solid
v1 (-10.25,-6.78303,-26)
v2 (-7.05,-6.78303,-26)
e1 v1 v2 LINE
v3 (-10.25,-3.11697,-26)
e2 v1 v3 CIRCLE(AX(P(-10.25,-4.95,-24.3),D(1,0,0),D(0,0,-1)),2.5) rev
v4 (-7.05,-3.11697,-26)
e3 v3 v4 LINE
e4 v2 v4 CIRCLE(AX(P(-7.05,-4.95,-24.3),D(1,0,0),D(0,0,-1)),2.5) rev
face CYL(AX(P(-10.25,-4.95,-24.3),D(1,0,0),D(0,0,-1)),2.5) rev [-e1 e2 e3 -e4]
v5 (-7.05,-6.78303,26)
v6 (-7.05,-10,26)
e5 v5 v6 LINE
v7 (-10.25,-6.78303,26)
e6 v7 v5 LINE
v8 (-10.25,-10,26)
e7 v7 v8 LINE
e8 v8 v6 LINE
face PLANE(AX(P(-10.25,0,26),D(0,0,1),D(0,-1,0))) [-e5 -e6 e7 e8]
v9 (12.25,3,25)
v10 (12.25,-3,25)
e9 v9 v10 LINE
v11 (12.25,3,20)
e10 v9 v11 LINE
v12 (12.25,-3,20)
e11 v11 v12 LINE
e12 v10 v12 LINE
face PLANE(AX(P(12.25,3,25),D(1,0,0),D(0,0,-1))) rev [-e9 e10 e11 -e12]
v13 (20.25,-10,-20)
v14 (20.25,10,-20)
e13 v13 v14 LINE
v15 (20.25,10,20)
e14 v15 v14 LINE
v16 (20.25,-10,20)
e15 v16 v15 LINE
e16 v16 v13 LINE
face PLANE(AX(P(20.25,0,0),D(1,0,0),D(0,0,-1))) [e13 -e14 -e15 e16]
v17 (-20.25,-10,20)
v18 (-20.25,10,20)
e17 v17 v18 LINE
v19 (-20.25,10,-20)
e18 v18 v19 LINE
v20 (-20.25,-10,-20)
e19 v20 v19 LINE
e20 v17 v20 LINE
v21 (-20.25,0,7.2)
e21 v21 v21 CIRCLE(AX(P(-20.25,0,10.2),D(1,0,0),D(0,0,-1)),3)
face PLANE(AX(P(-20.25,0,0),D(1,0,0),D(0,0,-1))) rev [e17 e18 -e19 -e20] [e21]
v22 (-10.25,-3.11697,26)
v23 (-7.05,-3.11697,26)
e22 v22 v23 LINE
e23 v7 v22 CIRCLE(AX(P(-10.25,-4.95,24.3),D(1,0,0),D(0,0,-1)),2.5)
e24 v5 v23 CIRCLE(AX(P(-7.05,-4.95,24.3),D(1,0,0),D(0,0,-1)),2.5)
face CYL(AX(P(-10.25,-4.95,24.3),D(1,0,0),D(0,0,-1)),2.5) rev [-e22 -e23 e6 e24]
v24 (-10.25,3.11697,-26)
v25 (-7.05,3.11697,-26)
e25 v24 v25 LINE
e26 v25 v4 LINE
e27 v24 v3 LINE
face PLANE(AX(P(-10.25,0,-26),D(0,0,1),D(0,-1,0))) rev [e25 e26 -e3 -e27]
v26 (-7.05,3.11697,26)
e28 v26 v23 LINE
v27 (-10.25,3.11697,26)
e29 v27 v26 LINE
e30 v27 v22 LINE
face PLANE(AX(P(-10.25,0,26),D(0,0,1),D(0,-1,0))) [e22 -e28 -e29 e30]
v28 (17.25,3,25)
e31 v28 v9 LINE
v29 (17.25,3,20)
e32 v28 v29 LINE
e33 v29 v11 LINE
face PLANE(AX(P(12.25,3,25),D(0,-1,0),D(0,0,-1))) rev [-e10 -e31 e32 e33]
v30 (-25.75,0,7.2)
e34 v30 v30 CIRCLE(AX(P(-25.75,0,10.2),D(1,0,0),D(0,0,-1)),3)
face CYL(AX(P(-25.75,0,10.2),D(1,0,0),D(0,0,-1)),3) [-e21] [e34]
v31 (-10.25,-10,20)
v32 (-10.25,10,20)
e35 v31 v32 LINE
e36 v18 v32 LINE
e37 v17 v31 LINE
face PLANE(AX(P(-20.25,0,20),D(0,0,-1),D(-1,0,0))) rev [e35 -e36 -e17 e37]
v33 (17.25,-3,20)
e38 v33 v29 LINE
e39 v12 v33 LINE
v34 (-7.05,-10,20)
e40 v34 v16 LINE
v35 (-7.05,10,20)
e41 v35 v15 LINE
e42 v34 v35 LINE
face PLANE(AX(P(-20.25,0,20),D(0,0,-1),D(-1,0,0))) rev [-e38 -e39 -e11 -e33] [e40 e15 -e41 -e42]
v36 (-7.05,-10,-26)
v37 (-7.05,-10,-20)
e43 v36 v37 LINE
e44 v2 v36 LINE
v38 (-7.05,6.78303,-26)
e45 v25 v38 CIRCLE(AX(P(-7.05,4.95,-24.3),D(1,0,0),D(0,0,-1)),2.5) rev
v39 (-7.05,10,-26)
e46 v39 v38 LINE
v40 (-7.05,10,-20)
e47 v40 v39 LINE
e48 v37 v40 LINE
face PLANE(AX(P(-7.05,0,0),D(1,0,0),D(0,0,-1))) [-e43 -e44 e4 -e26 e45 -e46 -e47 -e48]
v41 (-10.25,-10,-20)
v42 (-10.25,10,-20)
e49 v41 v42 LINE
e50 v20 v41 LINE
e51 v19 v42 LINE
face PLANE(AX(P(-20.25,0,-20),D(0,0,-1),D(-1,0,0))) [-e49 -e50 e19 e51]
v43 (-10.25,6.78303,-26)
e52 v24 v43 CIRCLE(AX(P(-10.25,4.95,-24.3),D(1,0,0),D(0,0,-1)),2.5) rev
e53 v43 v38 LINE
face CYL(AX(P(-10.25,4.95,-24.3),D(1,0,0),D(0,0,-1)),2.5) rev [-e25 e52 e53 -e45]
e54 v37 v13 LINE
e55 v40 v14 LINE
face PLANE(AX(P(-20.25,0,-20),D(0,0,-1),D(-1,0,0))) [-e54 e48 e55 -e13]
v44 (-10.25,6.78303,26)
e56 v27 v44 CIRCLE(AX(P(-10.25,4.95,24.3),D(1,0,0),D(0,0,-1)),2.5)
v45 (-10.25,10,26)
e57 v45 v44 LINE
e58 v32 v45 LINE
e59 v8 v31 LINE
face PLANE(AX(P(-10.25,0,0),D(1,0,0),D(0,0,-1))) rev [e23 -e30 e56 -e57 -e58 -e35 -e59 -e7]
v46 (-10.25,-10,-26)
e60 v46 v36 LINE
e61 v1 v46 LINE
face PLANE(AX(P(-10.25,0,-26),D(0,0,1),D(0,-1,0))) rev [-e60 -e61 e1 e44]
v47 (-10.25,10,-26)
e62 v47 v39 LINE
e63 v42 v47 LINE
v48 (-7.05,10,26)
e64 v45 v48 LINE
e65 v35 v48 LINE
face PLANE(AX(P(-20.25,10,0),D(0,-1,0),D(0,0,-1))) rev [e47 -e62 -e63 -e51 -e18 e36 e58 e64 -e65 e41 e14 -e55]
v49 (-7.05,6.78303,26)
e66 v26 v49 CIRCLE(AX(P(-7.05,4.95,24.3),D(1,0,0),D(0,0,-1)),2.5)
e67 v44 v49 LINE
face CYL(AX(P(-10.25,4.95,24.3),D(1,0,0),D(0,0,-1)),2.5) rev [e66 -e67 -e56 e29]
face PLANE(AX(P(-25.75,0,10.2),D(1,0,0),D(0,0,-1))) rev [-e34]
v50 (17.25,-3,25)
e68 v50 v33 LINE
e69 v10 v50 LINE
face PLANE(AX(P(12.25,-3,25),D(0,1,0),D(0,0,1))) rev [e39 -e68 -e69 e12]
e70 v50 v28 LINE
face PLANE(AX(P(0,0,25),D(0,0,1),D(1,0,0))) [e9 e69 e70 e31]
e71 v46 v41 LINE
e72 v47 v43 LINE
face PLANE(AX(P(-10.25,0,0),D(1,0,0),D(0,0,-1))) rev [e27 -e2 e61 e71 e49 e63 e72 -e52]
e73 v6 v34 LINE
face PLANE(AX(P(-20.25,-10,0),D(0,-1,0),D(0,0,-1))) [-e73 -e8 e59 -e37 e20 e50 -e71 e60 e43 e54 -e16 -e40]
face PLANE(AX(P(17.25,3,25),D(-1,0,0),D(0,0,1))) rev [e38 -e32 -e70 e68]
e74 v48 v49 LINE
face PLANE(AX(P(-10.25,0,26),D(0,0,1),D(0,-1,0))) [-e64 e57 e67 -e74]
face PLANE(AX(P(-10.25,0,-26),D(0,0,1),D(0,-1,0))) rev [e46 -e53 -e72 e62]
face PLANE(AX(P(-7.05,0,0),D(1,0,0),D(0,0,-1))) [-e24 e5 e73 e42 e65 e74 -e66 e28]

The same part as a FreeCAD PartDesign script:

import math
import FreeCAD as App
import Part
import Sketcher
Q = App.Units.Quantity

doc = App.newDocument("Part")
body = doc.addObject("PartDesign::Body", "Body")

sketch1 = doc.addObject("Sketcher::SketchObject", "Sketch")
body.addObject(sketch1)
sketch1.AttachmentSupport = (doc.YZ_Plane, [""])
sketch1.MapMode = "FlatFace"
sketch1.AttachmentOffset = App.Placement(App.Vector(0, 0, 20.25), App.Rotation())
sketch1.addGeometry([
    Part.LineSegment(App.Vector(10, 20, 0), App.Vector(-10, 20, 0)),
    Part.LineSegment(App.Vector(-10, 20, 0), App.Vector(-10, -20, 0)),
    Part.LineSegment(App.Vector(-10, -20, 0), App.Vector(10, -20, 0)),
    Part.LineSegment(App.Vector(10, -20, 0), App.Vector(10, 20, 0)),
], False)
sketch1.addConstraint([
    Sketcher.Constraint("Coincident", 0, 2, 1, 1),
    Sketcher.Constraint("Coincident", 1, 2, 2, 1),
    Sketcher.Constraint("Coincident", 2, 2, 3, 1),
    Sketcher.Constraint("Coincident", 3, 2, 0, 1),
    Sketcher.Constraint("Horizontal", 0),
    Sketcher.Constraint("Vertical", 1),
    Sketcher.Constraint("Horizontal", 2),
    Sketcher.Constraint("Vertical", 3),
    Sketcher.Constraint("Symmetric", 0, 2, 2, 2, -1, 1),
    Sketcher.Constraint("DistanceX", 0, 2, 0, 1, Q("20 mm")),
    Sketcher.Constraint("DistanceY", 1, 2, 1, 1, Q("40 mm")),
])
pad1 = doc.addObject("PartDesign::Pad", "Pad")
body.addObject(pad1)
pad1.Profile = sketch1
pad1.Length = 40.5
pad1.Reversed = True

sketch2 = doc.addObject("Sketcher::SketchObject", "Sketch001")
body.addObject(sketch2)
sketch2.AttachmentSupport = (doc.YZ_Plane, [""])
sketch2.MapMode = "FlatFace"
sketch2.AttachmentOffset = App.Placement(App.Vector(0, 0, -7.05), App.Rotation())
sketch2.addGeometry([
    Part.LineSegment(App.Vector(-10, 26, 0), App.Vector(-10, 20, 0)),
    Part.LineSegment(App.Vector(-10, 20, 0), App.Vector(10, 20, 0)),
    Part.LineSegment(App.Vector(10, 20, 0), App.Vector(10, 26, 0)),
    Part.LineSegment(App.Vector(10, 26, 0), App.Vector(6.8, 26, 0)),
    Part.ArcOfCircle(Part.Circle(App.Vector(5, 24.3, 0), App.Vector(0, 0, 1), 2.5), math.radians(137), math.radians(403)),
    Part.LineSegment(App.Vector(3.1, 26, 0), App.Vector(-3.1, 26, 0)),
    Part.ArcOfCircle(Part.Circle(App.Vector(-5, 24.3, 0), App.Vector(0, 0, 1), 2.5), math.radians(137), math.radians(403)),
    Part.LineSegment(App.Vector(-6.8, 26, 0), App.Vector(-10, 26, 0)),
    Part.LineSegment(App.Vector(10, -20, 0), App.Vector(-10, -20, 0)),
    Part.LineSegment(App.Vector(-10, -20, 0), App.Vector(-10, -26, 0)),
    Part.LineSegment(App.Vector(-10, -26, 0), App.Vector(-6.8, -26, 0)),
    Part.ArcOfCircle(Part.Circle(App.Vector(-5, -24.3, 0), App.Vector(0, 0, 1), 2.5), math.radians(-43), math.radians(223)),
    Part.LineSegment(App.Vector(-3.1, -26, 0), App.Vector(3.1, -26, 0)),
    Part.ArcOfCircle(Part.Circle(App.Vector(5, -24.3, 0), App.Vector(0, 0, 1), 2.5), math.radians(-43), math.radians(223)),
    Part.LineSegment(App.Vector(6.8, -26, 0), App.Vector(10, -26, 0)),
    Part.LineSegment(App.Vector(10, -26, 0), App.Vector(10, -20, 0)),
], False)
sketch2.addConstraint([
    Sketcher.Constraint("Coincident", 0, 2, 1, 1),
    Sketcher.Constraint("Coincident", 1, 2, 2, 1),
    Sketcher.Constraint("Coincident", 2, 2, 3, 1),
    Sketcher.Constraint("Coincident", 3, 2, 4, 2),
    Sketcher.Constraint("Coincident", 4, 1, 5, 1),
    Sketcher.Constraint("Coincident", 5, 2, 6, 2),
    Sketcher.Constraint("Coincident", 6, 1, 7, 1),
    Sketcher.Constraint("Coincident", 7, 2, 0, 1),
    Sketcher.Constraint("Coincident", 8, 2, 9, 1),
    Sketcher.Constraint("Coincident", 9, 2, 10, 1),
    Sketcher.Constraint("Coincident", 10, 2, 11, 2),
    Sketcher.Constraint("Coincident", 11, 1, 12, 1),
    Sketcher.Constraint("Coincident", 12, 2, 13, 2),
    Sketcher.Constraint("Coincident", 13, 1, 14, 1),
    Sketcher.Constraint("Coincident", 14, 2, 15, 1),
    Sketcher.Constraint("Coincident", 15, 2, 8, 1),
    Sketcher.Constraint("Vertical", 0),
    Sketcher.Constraint("Horizontal", 1),
    Sketcher.Constraint("Vertical", 2),
    Sketcher.Constraint("Horizontal", 3),
    Sketcher.Constraint("Horizontal", 5),
    Sketcher.Constraint("Horizontal", 7),
    Sketcher.Constraint("Horizontal", 8),
    Sketcher.Constraint("Vertical", 9),
    Sketcher.Constraint("Horizontal", 10),
    Sketcher.Constraint("Horizontal", 12),
    Sketcher.Constraint("Horizontal", 14),
    Sketcher.Constraint("Vertical", 15),
    Sketcher.Constraint("Equal", 4, 6),
    Sketcher.Constraint("Equal", 6, 11),
    Sketcher.Constraint("Equal", 11, 13),
    Sketcher.Constraint("Symmetric", 4, 3, 11, 3, -1, 1),
    Sketcher.Constraint("Symmetric", 6, 3, 13, 3, -1, 1),
    Sketcher.Constraint("Symmetric", 1, 2, 8, 2, -1, 1),
    Sketcher.Constraint("Symmetric", 7, 2, 14, 2, -1, 1),
    Sketcher.Constraint("Symmetric", 4, 3, 6, 3, -2),
    Sketcher.Constraint("Symmetric", 2, 2, 7, 2, -2),
    Sketcher.Constraint("Horizontal", 3, 2, 4, 1),
    Sketcher.Constraint("Horizontal", 10, 2, 11, 1),
    Sketcher.Constraint("Horizontal", 12, 2, 13, 1),
    Sketcher.Constraint("Radius", 4, Q("2.5 mm")),
    Sketcher.Constraint("DistanceX", 1, 1, 1, 2, Q("20 mm")),
    Sketcher.Constraint("DistanceY", 0, 2, 0, 1, Q("6 mm")),
    Sketcher.Constraint("DistanceY", -1, 1, 0, 2, Q("20 mm")),
    Sketcher.Constraint("DistanceY", -1, 1, 4, 3, Q("24.3 mm")),
    Sketcher.Constraint("DistanceX", 6, 3, 4, 3, Q("9.9 mm")),
])
pad2 = doc.addObject("PartDesign::Pad", "Pad001")
body.addObject(pad2)
pad2.Profile = sketch2
pad2.Length = 3.2
pad2.Reversed = True

sketch3 = doc.addObject("Sketcher::SketchObject", "Sketch002")
body.addObject(sketch3)
sketch3.AttachmentSupport = (doc.YZ_Plane, [""])
sketch3.MapMode = "FlatFace"
sketch3.AttachmentOffset = App.Placement(App.Vector(0, 0, -20.25), App.Rotation())
sketch3.addGeometry(Part.Circle(App.Vector(0, 10.2, 0), App.Vector(0, 0, 1), 3), False)
sketch3.addConstraint([
    Sketcher.Constraint("PointOnObject", 0, 3, -2),
    Sketcher.Constraint("Diameter", 0, Q("6 mm")),
    Sketcher.Constraint("DistanceY", -1, 1, 0, 3, Q("10.2 mm")),
])
pad3 = doc.addObject("PartDesign::Pad", "Pad002")
body.addObject(pad3)
pad3.Profile = sketch3
pad3.Length = 5.5
pad3.Reversed = True

sketch4 = doc.addObject("Sketcher::SketchObject", "Sketch003")
body.addObject(sketch4)
sketch4.AttachmentSupport = (doc.XY_Plane, [""])
sketch4.MapMode = "FlatFace"
sketch4.AttachmentOffset = App.Placement(App.Vector(0, 0, 20), App.Rotation())
sketch4.addGeometry([
    Part.LineSegment(App.Vector(12, 3, 0), App.Vector(12, -3, 0)),
    Part.LineSegment(App.Vector(12, -3, 0), App.Vector(17, -3, 0)),
    Part.LineSegment(App.Vector(17, -3, 0), App.Vector(17, 3, 0)),
    Part.LineSegment(App.Vector(17, 3, 0), App.Vector(12, 3, 0)),
], False)
sketch4.addConstraint([
    Sketcher.Constraint("Coincident", 0, 2, 1, 1),
    Sketcher.Constraint("Coincident", 1, 2, 2, 1),
    Sketcher.Constraint("Coincident", 2, 2, 3, 1),
    Sketcher.Constraint("Coincident", 3, 2, 0, 1),
    Sketcher.Constraint("Vertical", 0),
    Sketcher.Constraint("Horizontal", 1),
    Sketcher.Constraint("Vertical", 2),
    Sketcher.Constraint("Horizontal", 3),
    Sketcher.Constraint("DistanceX", 1, 1, 1, 2, Q("5 mm")),
    Sketcher.Constraint("DistanceY", 0, 2, 0, 1, Q("6 mm")),
    Sketcher.Constraint("DistanceY", 0, 2, -1, 1, Q("3 mm")),
    Sketcher.Constraint("DistanceX", -1, 1, 0, 2, Q("12.25 mm")),
])
pad4 = doc.addObject("PartDesign::Pad", "Pad003")
body.addObject(pad4)
pad4.Profile = sketch4
pad4.Length = 5

doc.recompute()
